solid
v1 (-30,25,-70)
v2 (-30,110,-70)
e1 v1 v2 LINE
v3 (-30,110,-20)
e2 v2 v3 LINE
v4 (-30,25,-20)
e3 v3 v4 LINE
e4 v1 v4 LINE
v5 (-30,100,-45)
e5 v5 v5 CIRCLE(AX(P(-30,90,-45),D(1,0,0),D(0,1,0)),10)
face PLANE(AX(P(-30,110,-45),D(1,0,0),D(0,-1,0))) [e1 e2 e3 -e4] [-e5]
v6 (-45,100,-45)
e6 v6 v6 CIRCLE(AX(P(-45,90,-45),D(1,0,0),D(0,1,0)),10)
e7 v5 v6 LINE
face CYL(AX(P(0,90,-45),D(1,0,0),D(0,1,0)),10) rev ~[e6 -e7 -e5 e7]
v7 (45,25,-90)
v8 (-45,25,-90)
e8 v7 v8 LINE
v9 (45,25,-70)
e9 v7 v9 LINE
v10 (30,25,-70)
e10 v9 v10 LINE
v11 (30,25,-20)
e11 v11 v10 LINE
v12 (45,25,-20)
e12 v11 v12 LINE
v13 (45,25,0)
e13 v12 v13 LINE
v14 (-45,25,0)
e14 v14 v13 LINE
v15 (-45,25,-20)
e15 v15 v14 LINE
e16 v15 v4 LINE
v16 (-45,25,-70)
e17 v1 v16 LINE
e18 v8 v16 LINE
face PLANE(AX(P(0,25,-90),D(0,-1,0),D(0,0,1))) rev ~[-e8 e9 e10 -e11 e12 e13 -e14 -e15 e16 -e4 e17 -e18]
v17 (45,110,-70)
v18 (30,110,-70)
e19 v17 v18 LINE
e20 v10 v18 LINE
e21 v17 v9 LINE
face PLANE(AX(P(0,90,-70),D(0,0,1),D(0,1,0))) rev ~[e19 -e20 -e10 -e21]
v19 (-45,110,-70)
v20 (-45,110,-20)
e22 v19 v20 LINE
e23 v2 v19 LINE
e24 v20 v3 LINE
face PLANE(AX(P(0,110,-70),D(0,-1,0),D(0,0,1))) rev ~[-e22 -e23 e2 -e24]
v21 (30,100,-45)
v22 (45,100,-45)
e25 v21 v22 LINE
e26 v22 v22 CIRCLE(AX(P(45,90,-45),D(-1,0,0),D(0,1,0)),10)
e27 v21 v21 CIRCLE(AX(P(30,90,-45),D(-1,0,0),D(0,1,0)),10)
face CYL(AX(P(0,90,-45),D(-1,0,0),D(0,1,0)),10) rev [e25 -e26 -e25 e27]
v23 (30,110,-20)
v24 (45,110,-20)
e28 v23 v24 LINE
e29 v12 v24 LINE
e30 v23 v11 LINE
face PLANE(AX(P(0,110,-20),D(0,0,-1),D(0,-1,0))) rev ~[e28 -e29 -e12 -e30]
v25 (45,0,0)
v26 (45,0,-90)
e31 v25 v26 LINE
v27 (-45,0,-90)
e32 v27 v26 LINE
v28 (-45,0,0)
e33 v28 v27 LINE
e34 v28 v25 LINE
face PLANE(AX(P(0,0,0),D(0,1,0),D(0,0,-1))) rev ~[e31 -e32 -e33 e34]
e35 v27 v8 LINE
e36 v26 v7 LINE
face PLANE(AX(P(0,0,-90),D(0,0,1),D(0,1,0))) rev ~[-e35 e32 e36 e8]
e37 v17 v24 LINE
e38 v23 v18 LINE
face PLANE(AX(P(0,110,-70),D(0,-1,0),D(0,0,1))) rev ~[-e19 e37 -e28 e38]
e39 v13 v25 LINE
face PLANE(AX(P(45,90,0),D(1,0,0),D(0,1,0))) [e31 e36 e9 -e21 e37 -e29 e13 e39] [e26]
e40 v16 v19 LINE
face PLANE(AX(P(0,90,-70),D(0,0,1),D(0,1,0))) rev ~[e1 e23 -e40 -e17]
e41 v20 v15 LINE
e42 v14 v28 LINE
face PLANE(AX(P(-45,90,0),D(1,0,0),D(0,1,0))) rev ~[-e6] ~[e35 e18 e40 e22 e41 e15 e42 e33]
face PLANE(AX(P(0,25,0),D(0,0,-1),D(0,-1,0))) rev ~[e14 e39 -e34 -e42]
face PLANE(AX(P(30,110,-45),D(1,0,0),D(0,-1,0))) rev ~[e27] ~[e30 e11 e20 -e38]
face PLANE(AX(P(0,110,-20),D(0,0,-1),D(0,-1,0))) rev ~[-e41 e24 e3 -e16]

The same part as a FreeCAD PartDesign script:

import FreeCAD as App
import Part
import Sketcher

doc = App.newDocument("Part")
body = doc.addObject("PartDesign::Body", "Body")

# Sketch on YZ plane
sketch1 = body.newObject("Sketcher::SketchObject", "Sketch")
sketch1.AttachmentSupport = (doc.getObject("YZ_Plane"), [""])
sketch1.MapMode = "FlatFace"
sketch1.addGeometry([
    Part.LineSegment(App.Vector(110, -70, 0), App.Vector(110, -20, 0)),  # 0
    Part.LineSegment(App.Vector(110, -20, 0), App.Vector(25, -20, 0)),  # 1
    Part.LineSegment(App.Vector(25, -20, 0), App.Vector(25, 0, 0)),  # 2
    Part.LineSegment(App.Vector(25, 0, 0), App.Vector(0, 0, 0)),  # 3
    Part.LineSegment(App.Vector(0, 0, 0), App.Vector(0, -90, 0)),  # 4
    Part.LineSegment(App.Vector(0, -90, 0), App.Vector(25, -90, 0)),  # 5
    Part.LineSegment(App.Vector(25, -90, 0), App.Vector(25, -70, 0)),  # 6
    Part.LineSegment(App.Vector(25, -70, 0), App.Vector(110, -70, 0)),  # 7
    Part.Circle(App.Vector(90, -45, 0), App.Vector(0, 0, 1), 10),  # 8
], False)
sketch1.addConstraint([
    Sketcher.Constraint("Coincident", 0, 2, 1, 1),
    Sketcher.Constraint("Coincident", 1, 2, 2, 1),
    Sketcher.Constraint("Coincident", 2, 2, 3, 1),
    Sketcher.Constraint("Coincident", 3, 2, 4, 1),
    Sketcher.Constraint("Coincident", 4, 2, 5, 1),
    Sketcher.Constraint("Coincident", 5, 2, 6, 1),
    Sketcher.Constraint("Coincident", 6, 2, 7, 1),
    Sketcher.Constraint("Coincident", 7, 2, 0, 1),
    Sketcher.Constraint("Vertical", 0),
    Sketcher.Constraint("Horizontal", 1),
    Sketcher.Constraint("Vertical", 2),
    Sketcher.Constraint("Horizontal", 3),
    Sketcher.Constraint("Vertical", 4),
    Sketcher.Constraint("Horizontal", 5),
    Sketcher.Constraint("Vertical", 6),
    Sketcher.Constraint("Horizontal", 7),
    Sketcher.Constraint("Coincident", 3, 2, -1, 1),
    Sketcher.Constraint("Vertical", 2, 2, 5, 2),
    Sketcher.Constraint("Equal", 2, 6),
    Sketcher.Constraint("Diameter", 8, 20.0),
    Sketcher.Constraint("DistanceX", 3, 2, 3, 1, 25.0),
    Sketcher.Constraint("DistanceY", 0, 1, 0, 2, 50.0),
    Sketcher.Constraint("DistanceY", 2, 1, 2, 2, 20.0),
    Sketcher.Constraint("DistanceX", -1, 1, 8, 3, 90.0),
    Sketcher.Constraint("DistanceX", -1, 1, 0, 2, 110.0),
    Sketcher.Constraint("DistanceY", 8, 3, 0, 2, 25.0),
])
pad1 = body.newObject("PartDesign::Pad", "Pad")
pad1.Profile = sketch1
pad1.Length = 90
pad1.Midplane = True

# Sketch on XY plane
sketch2 = body.newObject("Sketcher::SketchObject", "Sketch001")
sketch2.AttachmentSupport = (doc.getObject("XY_Plane"), [""])
sketch2.MapMode = "FlatFace"
sketch2.AttachmentOffset = App.Placement(App.Vector(0, 0, -45), App.Rotation())
sketch2.addGeometry([
    Part.LineSegment(App.Vector(30, 110, 0), App.Vector(-30, 110, 0)),
    Part.LineSegment(App.Vector(-30, 110, 0), App.Vector(-30, 25, 0)),
    Part.LineSegment(App.Vector(-30, 25, 0), App.Vector(30, 25, 0)),
    Part.LineSegment(App.Vector(30, 25, 0), App.Vector(30, 110, 0)),
], False)
sketch2.addConstraint([
    Sketcher.Constraint("Coincident", 0, 2, 1, 1),
    Sketcher.Constraint("Coincident", 1, 2, 2, 1),
    Sketcher.Constraint("Coincident", 2, 2, 3, 1),
    Sketcher.Constraint("Coincident", 3, 2, 0, 1),
    Sketcher.Constraint("Horizontal", 0),
    Sketcher.Constraint("Vertical", 1),
    Sketcher.Constraint("Horizontal", 2),
    Sketcher.Constraint("Vertical", 3),
    Sketcher.Constraint("DistanceX", 0, 2, 0, 1, 60.0),
    Sketcher.Constraint("DistanceY", -1, 1, 0, 2, 110.0),
    Sketcher.Constraint("DistanceY", -1, 1, 1, 2, 25.0),
    Sketcher.Constraint("DistanceX", 0, 2, -1, 1, 30.0),
])
pocket1 = body.newObject("PartDesign::Pocket", "Pocket")
pocket1.Profile = sketch2
pocket1.Length = 90
pocket1.Midplane = True

doc.recompute()
